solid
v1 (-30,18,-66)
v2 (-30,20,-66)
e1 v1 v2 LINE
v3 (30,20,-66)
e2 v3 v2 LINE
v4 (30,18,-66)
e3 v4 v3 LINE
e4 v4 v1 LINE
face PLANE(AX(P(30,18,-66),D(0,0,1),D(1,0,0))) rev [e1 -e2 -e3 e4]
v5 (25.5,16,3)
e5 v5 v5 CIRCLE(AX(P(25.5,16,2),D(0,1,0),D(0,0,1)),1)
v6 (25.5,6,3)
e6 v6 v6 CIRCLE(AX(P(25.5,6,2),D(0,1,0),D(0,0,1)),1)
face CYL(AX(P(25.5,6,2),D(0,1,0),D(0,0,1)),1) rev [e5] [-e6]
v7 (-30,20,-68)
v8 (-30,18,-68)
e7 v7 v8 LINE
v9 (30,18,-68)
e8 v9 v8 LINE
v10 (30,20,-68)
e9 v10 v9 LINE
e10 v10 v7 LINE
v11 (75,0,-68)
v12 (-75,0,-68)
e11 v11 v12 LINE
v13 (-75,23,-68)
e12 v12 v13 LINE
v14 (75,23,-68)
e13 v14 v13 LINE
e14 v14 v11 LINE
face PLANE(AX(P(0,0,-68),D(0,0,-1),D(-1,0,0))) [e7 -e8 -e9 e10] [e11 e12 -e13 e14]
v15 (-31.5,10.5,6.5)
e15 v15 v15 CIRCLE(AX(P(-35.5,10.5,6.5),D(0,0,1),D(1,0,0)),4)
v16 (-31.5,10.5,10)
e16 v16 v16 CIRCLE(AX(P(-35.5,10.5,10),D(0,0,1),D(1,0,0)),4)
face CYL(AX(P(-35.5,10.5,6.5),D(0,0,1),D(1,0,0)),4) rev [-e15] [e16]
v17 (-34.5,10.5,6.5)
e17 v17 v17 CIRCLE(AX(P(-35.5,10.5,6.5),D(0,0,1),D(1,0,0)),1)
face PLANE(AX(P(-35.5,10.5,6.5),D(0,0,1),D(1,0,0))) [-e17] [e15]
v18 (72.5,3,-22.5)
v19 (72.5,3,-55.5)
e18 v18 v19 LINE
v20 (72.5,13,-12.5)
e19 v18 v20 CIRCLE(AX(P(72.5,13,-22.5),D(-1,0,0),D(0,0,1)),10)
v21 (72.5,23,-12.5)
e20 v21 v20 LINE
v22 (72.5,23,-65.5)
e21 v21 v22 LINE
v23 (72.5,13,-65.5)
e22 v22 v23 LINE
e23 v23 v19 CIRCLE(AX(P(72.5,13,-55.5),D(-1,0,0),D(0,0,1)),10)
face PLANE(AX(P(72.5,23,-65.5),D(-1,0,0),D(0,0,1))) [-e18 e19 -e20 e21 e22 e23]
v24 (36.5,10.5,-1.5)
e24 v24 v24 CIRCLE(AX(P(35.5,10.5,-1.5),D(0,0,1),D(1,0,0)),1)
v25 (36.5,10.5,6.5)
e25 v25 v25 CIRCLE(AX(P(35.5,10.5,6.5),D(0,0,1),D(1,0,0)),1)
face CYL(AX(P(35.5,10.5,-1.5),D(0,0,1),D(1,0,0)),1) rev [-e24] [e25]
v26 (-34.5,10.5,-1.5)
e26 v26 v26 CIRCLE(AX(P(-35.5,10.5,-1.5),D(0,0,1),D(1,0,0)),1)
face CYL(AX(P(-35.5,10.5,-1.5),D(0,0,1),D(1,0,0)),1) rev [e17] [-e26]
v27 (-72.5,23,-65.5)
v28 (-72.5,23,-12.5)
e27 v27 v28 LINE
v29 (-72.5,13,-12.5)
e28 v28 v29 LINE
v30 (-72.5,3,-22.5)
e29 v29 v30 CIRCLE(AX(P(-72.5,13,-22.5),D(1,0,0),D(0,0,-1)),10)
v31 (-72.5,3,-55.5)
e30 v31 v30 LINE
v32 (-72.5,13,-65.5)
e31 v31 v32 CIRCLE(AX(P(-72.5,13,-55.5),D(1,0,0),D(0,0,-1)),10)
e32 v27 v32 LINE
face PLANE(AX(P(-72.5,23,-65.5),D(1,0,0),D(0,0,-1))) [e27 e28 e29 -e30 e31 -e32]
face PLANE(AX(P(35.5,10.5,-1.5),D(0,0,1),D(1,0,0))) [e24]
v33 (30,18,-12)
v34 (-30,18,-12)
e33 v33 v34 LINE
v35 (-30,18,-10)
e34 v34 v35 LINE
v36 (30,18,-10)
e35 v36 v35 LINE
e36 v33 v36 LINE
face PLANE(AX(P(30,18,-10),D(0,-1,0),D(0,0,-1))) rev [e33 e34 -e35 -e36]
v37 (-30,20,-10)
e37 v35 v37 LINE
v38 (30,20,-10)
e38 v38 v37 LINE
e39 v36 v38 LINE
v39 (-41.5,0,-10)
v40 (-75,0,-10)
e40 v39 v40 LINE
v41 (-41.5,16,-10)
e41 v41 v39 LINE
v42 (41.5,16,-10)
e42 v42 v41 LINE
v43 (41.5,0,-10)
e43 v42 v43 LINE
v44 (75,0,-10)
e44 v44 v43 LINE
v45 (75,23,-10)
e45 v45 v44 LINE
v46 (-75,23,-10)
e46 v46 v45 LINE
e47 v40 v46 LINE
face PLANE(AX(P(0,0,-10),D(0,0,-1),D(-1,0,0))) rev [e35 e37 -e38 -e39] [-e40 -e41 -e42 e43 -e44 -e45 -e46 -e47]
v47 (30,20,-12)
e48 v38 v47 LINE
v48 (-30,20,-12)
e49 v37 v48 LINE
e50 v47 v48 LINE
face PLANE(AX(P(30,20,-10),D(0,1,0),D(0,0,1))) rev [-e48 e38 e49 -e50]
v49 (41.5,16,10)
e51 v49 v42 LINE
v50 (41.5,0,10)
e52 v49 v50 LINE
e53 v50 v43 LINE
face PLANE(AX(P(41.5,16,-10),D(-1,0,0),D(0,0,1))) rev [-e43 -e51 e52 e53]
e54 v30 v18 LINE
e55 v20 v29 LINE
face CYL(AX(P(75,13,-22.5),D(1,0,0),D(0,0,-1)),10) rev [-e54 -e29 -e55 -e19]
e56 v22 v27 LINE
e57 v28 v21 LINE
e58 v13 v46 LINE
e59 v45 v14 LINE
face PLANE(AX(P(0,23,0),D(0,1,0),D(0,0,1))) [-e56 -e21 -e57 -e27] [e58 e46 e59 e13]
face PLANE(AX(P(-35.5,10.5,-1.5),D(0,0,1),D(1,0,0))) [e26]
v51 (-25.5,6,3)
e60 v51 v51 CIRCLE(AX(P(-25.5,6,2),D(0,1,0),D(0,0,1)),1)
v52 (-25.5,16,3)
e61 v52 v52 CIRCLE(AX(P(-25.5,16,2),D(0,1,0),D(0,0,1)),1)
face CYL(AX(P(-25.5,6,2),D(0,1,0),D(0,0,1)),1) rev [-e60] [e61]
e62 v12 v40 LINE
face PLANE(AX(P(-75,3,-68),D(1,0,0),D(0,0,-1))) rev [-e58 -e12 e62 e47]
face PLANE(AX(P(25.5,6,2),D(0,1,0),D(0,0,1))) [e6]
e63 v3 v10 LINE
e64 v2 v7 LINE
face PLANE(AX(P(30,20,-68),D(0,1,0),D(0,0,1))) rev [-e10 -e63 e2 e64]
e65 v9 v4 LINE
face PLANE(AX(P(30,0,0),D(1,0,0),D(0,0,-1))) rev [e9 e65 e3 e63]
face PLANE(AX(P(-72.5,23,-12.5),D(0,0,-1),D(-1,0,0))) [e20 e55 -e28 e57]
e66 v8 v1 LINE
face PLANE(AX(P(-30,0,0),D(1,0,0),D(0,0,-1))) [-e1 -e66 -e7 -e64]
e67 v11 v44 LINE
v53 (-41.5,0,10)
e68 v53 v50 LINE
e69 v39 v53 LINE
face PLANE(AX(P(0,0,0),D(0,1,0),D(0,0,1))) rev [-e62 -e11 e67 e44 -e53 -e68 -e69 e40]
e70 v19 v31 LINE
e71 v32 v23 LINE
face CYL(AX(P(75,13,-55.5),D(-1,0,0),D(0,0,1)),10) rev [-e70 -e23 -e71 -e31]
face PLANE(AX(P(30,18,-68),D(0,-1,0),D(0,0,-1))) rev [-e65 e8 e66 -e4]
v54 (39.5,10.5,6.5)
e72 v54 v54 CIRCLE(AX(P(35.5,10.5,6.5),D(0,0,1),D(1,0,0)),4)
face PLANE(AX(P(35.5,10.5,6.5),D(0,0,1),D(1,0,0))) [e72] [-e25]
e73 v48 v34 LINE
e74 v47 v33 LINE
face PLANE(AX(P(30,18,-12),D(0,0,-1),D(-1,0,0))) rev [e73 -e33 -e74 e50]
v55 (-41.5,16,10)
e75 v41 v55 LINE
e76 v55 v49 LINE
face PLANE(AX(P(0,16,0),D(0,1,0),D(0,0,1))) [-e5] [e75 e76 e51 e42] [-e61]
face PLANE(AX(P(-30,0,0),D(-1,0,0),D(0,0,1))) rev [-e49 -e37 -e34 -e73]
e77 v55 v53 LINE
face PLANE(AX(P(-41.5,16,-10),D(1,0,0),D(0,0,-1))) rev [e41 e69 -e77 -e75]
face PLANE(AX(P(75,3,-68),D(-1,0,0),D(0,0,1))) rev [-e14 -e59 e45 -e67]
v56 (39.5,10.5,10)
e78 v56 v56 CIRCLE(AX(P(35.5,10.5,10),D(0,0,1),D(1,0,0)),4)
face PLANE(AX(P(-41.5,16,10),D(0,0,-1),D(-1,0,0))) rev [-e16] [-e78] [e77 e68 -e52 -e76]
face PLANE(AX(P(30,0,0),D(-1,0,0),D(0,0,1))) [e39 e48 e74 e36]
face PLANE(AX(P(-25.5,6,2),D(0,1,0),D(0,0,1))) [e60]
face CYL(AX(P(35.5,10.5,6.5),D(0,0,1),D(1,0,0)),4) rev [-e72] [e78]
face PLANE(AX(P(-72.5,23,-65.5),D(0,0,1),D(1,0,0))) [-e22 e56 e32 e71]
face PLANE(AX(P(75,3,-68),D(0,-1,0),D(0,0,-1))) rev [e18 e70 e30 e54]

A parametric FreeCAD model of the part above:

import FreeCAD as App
import Part
import Sketcher
from FreeCAD import Vector
Q = App.Units.Quantity


def edges_at(feature, points):
    """Names of the edges that pass closest to the given points."""
    edges = feature.Shape.Edges
    near = lambda p: min(range(len(edges)), key=lambda i: edges[i].distToShape(Part.Vertex(*p))[0])
    return sorted({f"Edge{near(p) + 1}" for p in points})

doc = App.newDocument("Part")
body = doc.addObject("PartDesign::Body", "Body")

# Sketch on XZ plane
sketch1 = body.newObject("Sketcher::SketchObject", "Sketch")
sketch1.AttachmentSupport = (doc.getObject("XZ_Plane"), [""])
sketch1.MapMode = "FlatFace"
sketch1.addGeometry([
    Part.LineSegment(Vector(-42, -10, 0), Vector(-42, 10, 0)),
    Part.LineSegment(Vector(-42, 10, 0), Vector(42, 10, 0)),
    Part.LineSegment(Vector(42, 10, 0), Vector(42, -10, 0)),
    Part.LineSegment(Vector(42, -10, 0), Vector(-42, -10, 0)),
], False)
sketch1.addConstraint([
    Sketcher.Constraint("Coincident", 0, 2, 1, 1),
    Sketcher.Constraint("Coincident", 1, 2, 2, 1),
    Sketcher.Constraint("Coincident", 2, 2, 3, 1),
    Sketcher.Constraint("Coincident", 3, 2, 0, 1),
    Sketcher.Constraint("Vertical", 0),
    Sketcher.Constraint("Horizontal", 1),
    Sketcher.Constraint("Vertical", 2),
    Sketcher.Constraint("Horizontal", 3),
    Sketcher.Constraint("Symmetric", 0, 2, 2, 2, -1, 1),
    Sketcher.Constraint("DistanceX", 1, 1, 1, 2, Q("83 mm")),
    Sketcher.Constraint("DistanceY", 0, 1, 0, 2, Q("20 mm")),
])
pad1 = body.newObject("PartDesign::Pad", "Pad")
pad1.Profile = sketch1
pad1.Length = 16
pad1.Reversed = True

# Sketch on XY plane
sketch2 = body.newObject("Sketcher::SketchObject", "Sketch001")
sketch2.AttachmentSupport = (doc.getObject("XY_Plane"), [""])
sketch2.MapMode = "FlatFace"
sketch2.AttachmentOffset = App.Placement(Vector(0, 0, 10), App.Rotation())
sketch2.addGeometry([
    Part.Circle(Vector(-35.5, 10.5, 0), Vector(0, 0, 1), 4),
    Part.Circle(Vector(35.5, 10.5, 0), Vector(0, 0, 1), 4),
], False)
sketch2.addConstraint([
    Sketcher.Constraint("Equal", 0, 1),
    Sketcher.Constraint("Symmetric", 0, 3, 1, 3, -2),
    Sketcher.Constraint("Diameter", 0, Q("8 mm")),
    Sketcher.Constraint("DistanceX", 0, 3, 1, 3, Q("71 mm")),
    Sketcher.Constraint("DistanceY", -1, 1, 0, 3, Q("10.5 mm")),
])
pocket1 = body.newObject("PartDesign::Pocket", "Pocket")
pocket1.Profile = sketch2
pocket1.Length = 3.5

# Sketch on XZ plane
sketch3 = body.newObject("Sketcher::SketchObject", "Sketch002")
sketch3.AttachmentSupport = (doc.getObject("XZ_Plane"), [""])
sketch3.MapMode = "FlatFace"
sketch3.AttachmentOffset = App.Placement(Vector(0, 0, -16), App.Rotation())
sketch3.addGeometry([
    Part.Circle(Vector(-25.5, 2, 0), Vector(0, 0, 1), 1),
    Part.Circle(Vector(25.5, 2, 0), Vector(0, 0, 1), 1),
], False)
sketch3.addConstraint([
    Sketcher.Constraint("Equal", 0, 1),
    Sketcher.Constraint("Symmetric", 0, 3, 1, 3, -2),
    Sketcher.Constraint("Diameter", 0, Q("2 mm")),
    Sketcher.Constraint("DistanceY", -1, 1, 0, 3, Q("2 mm")),
    Sketcher.Constraint("DistanceX", 0, 3, 1, 3, Q("51 mm")),
])
pocket2 = body.newObject("PartDesign::Pocket", "Pocket001")
pocket2.Profile = sketch3
pocket2.Length = 10
pocket2.Reversed = True

# Sketch on XY plane
sketch4 = body.newObject("Sketcher::SketchObject", "Sketch003")
sketch4.AttachmentSupport = (doc.getObject("XY_Plane"), [""])
sketch4.MapMode = "FlatFace"
sketch4.AttachmentOffset = App.Placement(Vector(0, 0, 6.5), App.Rotation())
sketch4.addGeometry([
    Part.Circle(Vector(-35.5, 10.5, 0), Vector(0, 0, 1), 1),
    Part.Circle(Vector(35.5, 10.5, 0), Vector(0, 0, 1), 1),
], False)
sketch4.addConstraint([
    Sketcher.Constraint("Equal", 0, 1),
    Sketcher.Constraint("Symmetric", 0, 3, 1, 3, -2),
    Sketcher.Constraint("Diameter", 0, Q("2 mm")),
    Sketcher.Constraint("DistanceX", 0, 3, 1, 3, Q("71 mm")),
    Sketcher.Constraint("DistanceY", -1, 1, 0, 3, Q("10.5 mm")),
])
pocket3 = body.newObject("PartDesign::Pocket", "Pocket002")
pocket3.Profile = sketch4
pocket3.Length = 8

# Sketch on XY plane
sketch5 = body.newObject("Sketcher::SketchObject", "Sketch004")
sketch5.AttachmentSupport = (doc.getObject("XY_Plane"), [""])
sketch5.MapMode = "FlatFace"
sketch5.AttachmentOffset = App.Placement(Vector(0, 0, -10), App.Rotation())
sketch5.addGeometry([
    Part.LineSegment(Vector(75, 3, 0), Vector(75, 0, 0)),
    Part.LineSegment(Vector(75, 0, 0), Vector(-75, 0, 0)),
    Part.LineSegment(Vector(-75, 0, 0), Vector(-75, 3, 0)),
    Part.LineSegment(Vector(-75, 3, 0), Vector(75, 3, 0)),
], False)
sketch5.addConstraint([
    Sketcher.Constraint("Coincident", 0, 2, 1, 1),
    Sketcher.Constraint("Coincident", 1, 2, 2, 1),
    Sketcher.Constraint("Coincident", 2, 2, 3, 1),
    Sketcher.Constraint("Coincident", 3, 2, 0, 1),
    Sketcher.Constraint("Vertical", 0),
    Sketcher.Constraint("Horizontal", 1),
    Sketcher.Constraint("Vertical", 2),
    Sketcher.Constraint("Horizontal", 3),
    Sketcher.Constraint("Symmetric", 0, 2, 1, 2, -1, 1),
    Sketcher.Constraint("DistanceX", 1, 2, 1, 1, Q("150 mm")),
    Sketcher.Constraint("DistanceY", 0, 2, 0, 1, Q("3 mm")),
])
pad2 = body.newObject("PartDesign::Pad", "Pad001")
pad2.Profile = sketch5
pad2.Length = 58
pad2.Reversed = True

# Sketch on XZ plane
sketch6 = body.newObject("Sketcher::SketchObject", "Sketch005")
sketch6.AttachmentSupport = (doc.getObject("XZ_Plane"), [""])
sketch6.MapMode = "FlatFace"
sketch6.AttachmentOffset = App.Placement(Vector(0, 0, -3), App.Rotation())
sketch6.addGeometry([
    Part.LineSegment(Vector(-75, -68, 0), Vector(-75, -10, 0)),  # 0
    Part.LineSegment(Vector(-75, -10, 0), Vector(75, -10, 0)),  # 1
    Part.LineSegment(Vector(75, -10, 0), Vector(75, -68, 0)),  # 2
    Part.LineSegment(Vector(75, -68, 0), Vector(-75, -68, 0)),  # 3
    Part.LineSegment(Vector(72, -12, 0), Vector(-72, -12, 0)),  # 4
    Part.LineSegment(Vector(-72, -12, 0), Vector(-72, -66, 0)),  # 5
    Part.LineSegment(Vector(-72, -66, 0), Vector(72, -66, 0)),  # 6
    Part.LineSegment(Vector(72, -66, 0), Vector(72, -12, 0)),  # 7
], False)
sketch6.addConstraint([
    Sketcher.Constraint("Coincident", 0, 2, 1, 1),
    Sketcher.Constraint("Coincident", 1, 2, 2, 1),
    Sketcher.Constraint("Coincident", 2, 2, 3, 1),
    Sketcher.Constraint("Coincident", 3, 2, 0, 1),
    Sketcher.Constraint("Coincident", 4, 2, 5, 1),
    Sketcher.Constraint("Coincident", 5, 2, 6, 1),
    Sketcher.Constraint("Coincident", 6, 2, 7, 1),
    Sketcher.Constraint("Coincident", 7, 2, 4, 1),
    Sketcher.Constraint("Vertical", 0),
    Sketcher.Constraint("Horizontal", 1),
    Sketcher.Constraint("Vertical", 2),
    Sketcher.Constraint("Horizontal", 3),
    Sketcher.Constraint("Horizontal", 4),
    Sketcher.Constraint("Vertical", 5),
    Sketcher.Constraint("Horizontal", 6),
    Sketcher.Constraint("Vertical", 7),
    Sketcher.Constraint("DistanceX", 1, 1, 1, 2, Q("150 mm")),
    Sketcher.Constraint("DistanceX", 4, 2, 4, 1, Q("145 mm")),
    Sketcher.Constraint("DistanceY", 0, 1, 0, 2, Q("58 mm")),
    Sketcher.Constraint("DistanceY", 5, 2, 5, 1, Q("53 mm")),
    Sketcher.Constraint("DistanceX", 0, 2, -1, 1, Q("75 mm")),
    Sketcher.Constraint("DistanceY", 0, 2, -1, 1, Q("10 mm")),
    Sketcher.Constraint("DistanceX", 4, 2, -1, 1, Q("72.5 mm")),
    Sketcher.Constraint("DistanceY", 4, 2, -1, 1, Q("12.5 mm")),
])
pad3 = body.newObject("PartDesign::Pad", "Pad002")
pad3.Profile = sketch6
pad3.Length = 20
pad3.Reversed = True
doc.recompute()

fillet = body.newObject("PartDesign::Fillet", "Fillet")
fillet.Base = (pad3, edges_at(pad3, [(0, 3, -65.5), (0, 3, -12.5)]))
fillet.Radius = 10

# Sketch on YZ plane
sketch7 = body.newObject("Sketcher::SketchObject", "Sketch006")
sketch7.AttachmentSupport = (doc.getObject("YZ_Plane"), [""])
sketch7.MapMode = "FlatFace"
sketch7.AttachmentOffset = App.Placement(Vector(0, 0, -30), App.Rotation())
sketch7.addGeometry([
    Part.LineSegment(Vector(20, -68, 0), Vector(18, -68, 0)),  # 0
    Part.LineSegment(Vector(18, -68, 0), Vector(18, -66, 0)),  # 1
    Part.LineSegment(Vector(18, -66, 0), Vector(20, -66, 0)),  # 2
    Part.LineSegment(Vector(20, -66, 0), Vector(20, -68, 0)),  # 3
    Part.LineSegment(Vector(20, -12, 0), Vector(18, -12, 0)),  # 4
    Part.LineSegment(Vector(18, -12, 0), Vector(18, -10, 0)),  # 5
    Part.LineSegment(Vector(18, -10, 0), Vector(20, -10, 0)),  # 6
    Part.LineSegment(Vector(20, -10, 0), Vector(20, -12, 0)),  # 7
], False)
sketch7.addConstraint([
    Sketcher.Constraint("Coincident", 0, 2, 1, 1),
    Sketcher.Constraint("Coincident", 1, 2, 2, 1),
    Sketcher.Constraint("Coincident", 2, 2, 3, 1),
    Sketcher.Constraint("Coincident", 3, 2, 0, 1),
    Sketcher.Constraint("Coincident", 4, 2, 5, 1),
    Sketcher.Constraint("Coincident", 5, 2, 6, 1),
    Sketcher.Constraint("Coincident", 6, 2, 7, 1),
    Sketcher.Constraint("Coincident", 7, 2, 4, 1),
    Sketcher.Constraint("Horizontal", 0),
    Sketcher.Constraint("Vertical", 1),
    Sketcher.Constraint("Horizontal", 2),
    Sketcher.Constraint("Vertical", 3),
    Sketcher.Constraint("Horizontal", 4),
    Sketcher.Constraint("Vertical", 5),
    Sketcher.Constraint("Horizontal", 6),
    Sketcher.Constraint("Vertical", 7),
    Sketcher.Constraint("Vertical", 1, 2, 4, 2),
    Sketcher.Constraint("Vertical", 3, 2, 6, 2),
    Sketcher.Constraint("Equal", 6, 1),
    Sketcher.Constraint("Equal", 3, 5),
    Sketcher.Constraint("DistanceX", 0, 2, 0, 1, Q("2 mm")),
    Sketcher.Constraint("DistanceX", -1, 1, 0, 2, Q("18 mm")),
    Sketcher.Constraint("DistanceY", 0, 2, -1, 1, Q("68 mm")),
    Sketcher.Constraint("DistanceY", 4, 2, -1, 1, Q("12 mm")),
])
pocket4 = body.newObject("PartDesign::Pocket", "Pocket003")
pocket4.Profile = sketch7
pocket4.Length = 60
pocket4.Reversed = True

doc.recompute()
